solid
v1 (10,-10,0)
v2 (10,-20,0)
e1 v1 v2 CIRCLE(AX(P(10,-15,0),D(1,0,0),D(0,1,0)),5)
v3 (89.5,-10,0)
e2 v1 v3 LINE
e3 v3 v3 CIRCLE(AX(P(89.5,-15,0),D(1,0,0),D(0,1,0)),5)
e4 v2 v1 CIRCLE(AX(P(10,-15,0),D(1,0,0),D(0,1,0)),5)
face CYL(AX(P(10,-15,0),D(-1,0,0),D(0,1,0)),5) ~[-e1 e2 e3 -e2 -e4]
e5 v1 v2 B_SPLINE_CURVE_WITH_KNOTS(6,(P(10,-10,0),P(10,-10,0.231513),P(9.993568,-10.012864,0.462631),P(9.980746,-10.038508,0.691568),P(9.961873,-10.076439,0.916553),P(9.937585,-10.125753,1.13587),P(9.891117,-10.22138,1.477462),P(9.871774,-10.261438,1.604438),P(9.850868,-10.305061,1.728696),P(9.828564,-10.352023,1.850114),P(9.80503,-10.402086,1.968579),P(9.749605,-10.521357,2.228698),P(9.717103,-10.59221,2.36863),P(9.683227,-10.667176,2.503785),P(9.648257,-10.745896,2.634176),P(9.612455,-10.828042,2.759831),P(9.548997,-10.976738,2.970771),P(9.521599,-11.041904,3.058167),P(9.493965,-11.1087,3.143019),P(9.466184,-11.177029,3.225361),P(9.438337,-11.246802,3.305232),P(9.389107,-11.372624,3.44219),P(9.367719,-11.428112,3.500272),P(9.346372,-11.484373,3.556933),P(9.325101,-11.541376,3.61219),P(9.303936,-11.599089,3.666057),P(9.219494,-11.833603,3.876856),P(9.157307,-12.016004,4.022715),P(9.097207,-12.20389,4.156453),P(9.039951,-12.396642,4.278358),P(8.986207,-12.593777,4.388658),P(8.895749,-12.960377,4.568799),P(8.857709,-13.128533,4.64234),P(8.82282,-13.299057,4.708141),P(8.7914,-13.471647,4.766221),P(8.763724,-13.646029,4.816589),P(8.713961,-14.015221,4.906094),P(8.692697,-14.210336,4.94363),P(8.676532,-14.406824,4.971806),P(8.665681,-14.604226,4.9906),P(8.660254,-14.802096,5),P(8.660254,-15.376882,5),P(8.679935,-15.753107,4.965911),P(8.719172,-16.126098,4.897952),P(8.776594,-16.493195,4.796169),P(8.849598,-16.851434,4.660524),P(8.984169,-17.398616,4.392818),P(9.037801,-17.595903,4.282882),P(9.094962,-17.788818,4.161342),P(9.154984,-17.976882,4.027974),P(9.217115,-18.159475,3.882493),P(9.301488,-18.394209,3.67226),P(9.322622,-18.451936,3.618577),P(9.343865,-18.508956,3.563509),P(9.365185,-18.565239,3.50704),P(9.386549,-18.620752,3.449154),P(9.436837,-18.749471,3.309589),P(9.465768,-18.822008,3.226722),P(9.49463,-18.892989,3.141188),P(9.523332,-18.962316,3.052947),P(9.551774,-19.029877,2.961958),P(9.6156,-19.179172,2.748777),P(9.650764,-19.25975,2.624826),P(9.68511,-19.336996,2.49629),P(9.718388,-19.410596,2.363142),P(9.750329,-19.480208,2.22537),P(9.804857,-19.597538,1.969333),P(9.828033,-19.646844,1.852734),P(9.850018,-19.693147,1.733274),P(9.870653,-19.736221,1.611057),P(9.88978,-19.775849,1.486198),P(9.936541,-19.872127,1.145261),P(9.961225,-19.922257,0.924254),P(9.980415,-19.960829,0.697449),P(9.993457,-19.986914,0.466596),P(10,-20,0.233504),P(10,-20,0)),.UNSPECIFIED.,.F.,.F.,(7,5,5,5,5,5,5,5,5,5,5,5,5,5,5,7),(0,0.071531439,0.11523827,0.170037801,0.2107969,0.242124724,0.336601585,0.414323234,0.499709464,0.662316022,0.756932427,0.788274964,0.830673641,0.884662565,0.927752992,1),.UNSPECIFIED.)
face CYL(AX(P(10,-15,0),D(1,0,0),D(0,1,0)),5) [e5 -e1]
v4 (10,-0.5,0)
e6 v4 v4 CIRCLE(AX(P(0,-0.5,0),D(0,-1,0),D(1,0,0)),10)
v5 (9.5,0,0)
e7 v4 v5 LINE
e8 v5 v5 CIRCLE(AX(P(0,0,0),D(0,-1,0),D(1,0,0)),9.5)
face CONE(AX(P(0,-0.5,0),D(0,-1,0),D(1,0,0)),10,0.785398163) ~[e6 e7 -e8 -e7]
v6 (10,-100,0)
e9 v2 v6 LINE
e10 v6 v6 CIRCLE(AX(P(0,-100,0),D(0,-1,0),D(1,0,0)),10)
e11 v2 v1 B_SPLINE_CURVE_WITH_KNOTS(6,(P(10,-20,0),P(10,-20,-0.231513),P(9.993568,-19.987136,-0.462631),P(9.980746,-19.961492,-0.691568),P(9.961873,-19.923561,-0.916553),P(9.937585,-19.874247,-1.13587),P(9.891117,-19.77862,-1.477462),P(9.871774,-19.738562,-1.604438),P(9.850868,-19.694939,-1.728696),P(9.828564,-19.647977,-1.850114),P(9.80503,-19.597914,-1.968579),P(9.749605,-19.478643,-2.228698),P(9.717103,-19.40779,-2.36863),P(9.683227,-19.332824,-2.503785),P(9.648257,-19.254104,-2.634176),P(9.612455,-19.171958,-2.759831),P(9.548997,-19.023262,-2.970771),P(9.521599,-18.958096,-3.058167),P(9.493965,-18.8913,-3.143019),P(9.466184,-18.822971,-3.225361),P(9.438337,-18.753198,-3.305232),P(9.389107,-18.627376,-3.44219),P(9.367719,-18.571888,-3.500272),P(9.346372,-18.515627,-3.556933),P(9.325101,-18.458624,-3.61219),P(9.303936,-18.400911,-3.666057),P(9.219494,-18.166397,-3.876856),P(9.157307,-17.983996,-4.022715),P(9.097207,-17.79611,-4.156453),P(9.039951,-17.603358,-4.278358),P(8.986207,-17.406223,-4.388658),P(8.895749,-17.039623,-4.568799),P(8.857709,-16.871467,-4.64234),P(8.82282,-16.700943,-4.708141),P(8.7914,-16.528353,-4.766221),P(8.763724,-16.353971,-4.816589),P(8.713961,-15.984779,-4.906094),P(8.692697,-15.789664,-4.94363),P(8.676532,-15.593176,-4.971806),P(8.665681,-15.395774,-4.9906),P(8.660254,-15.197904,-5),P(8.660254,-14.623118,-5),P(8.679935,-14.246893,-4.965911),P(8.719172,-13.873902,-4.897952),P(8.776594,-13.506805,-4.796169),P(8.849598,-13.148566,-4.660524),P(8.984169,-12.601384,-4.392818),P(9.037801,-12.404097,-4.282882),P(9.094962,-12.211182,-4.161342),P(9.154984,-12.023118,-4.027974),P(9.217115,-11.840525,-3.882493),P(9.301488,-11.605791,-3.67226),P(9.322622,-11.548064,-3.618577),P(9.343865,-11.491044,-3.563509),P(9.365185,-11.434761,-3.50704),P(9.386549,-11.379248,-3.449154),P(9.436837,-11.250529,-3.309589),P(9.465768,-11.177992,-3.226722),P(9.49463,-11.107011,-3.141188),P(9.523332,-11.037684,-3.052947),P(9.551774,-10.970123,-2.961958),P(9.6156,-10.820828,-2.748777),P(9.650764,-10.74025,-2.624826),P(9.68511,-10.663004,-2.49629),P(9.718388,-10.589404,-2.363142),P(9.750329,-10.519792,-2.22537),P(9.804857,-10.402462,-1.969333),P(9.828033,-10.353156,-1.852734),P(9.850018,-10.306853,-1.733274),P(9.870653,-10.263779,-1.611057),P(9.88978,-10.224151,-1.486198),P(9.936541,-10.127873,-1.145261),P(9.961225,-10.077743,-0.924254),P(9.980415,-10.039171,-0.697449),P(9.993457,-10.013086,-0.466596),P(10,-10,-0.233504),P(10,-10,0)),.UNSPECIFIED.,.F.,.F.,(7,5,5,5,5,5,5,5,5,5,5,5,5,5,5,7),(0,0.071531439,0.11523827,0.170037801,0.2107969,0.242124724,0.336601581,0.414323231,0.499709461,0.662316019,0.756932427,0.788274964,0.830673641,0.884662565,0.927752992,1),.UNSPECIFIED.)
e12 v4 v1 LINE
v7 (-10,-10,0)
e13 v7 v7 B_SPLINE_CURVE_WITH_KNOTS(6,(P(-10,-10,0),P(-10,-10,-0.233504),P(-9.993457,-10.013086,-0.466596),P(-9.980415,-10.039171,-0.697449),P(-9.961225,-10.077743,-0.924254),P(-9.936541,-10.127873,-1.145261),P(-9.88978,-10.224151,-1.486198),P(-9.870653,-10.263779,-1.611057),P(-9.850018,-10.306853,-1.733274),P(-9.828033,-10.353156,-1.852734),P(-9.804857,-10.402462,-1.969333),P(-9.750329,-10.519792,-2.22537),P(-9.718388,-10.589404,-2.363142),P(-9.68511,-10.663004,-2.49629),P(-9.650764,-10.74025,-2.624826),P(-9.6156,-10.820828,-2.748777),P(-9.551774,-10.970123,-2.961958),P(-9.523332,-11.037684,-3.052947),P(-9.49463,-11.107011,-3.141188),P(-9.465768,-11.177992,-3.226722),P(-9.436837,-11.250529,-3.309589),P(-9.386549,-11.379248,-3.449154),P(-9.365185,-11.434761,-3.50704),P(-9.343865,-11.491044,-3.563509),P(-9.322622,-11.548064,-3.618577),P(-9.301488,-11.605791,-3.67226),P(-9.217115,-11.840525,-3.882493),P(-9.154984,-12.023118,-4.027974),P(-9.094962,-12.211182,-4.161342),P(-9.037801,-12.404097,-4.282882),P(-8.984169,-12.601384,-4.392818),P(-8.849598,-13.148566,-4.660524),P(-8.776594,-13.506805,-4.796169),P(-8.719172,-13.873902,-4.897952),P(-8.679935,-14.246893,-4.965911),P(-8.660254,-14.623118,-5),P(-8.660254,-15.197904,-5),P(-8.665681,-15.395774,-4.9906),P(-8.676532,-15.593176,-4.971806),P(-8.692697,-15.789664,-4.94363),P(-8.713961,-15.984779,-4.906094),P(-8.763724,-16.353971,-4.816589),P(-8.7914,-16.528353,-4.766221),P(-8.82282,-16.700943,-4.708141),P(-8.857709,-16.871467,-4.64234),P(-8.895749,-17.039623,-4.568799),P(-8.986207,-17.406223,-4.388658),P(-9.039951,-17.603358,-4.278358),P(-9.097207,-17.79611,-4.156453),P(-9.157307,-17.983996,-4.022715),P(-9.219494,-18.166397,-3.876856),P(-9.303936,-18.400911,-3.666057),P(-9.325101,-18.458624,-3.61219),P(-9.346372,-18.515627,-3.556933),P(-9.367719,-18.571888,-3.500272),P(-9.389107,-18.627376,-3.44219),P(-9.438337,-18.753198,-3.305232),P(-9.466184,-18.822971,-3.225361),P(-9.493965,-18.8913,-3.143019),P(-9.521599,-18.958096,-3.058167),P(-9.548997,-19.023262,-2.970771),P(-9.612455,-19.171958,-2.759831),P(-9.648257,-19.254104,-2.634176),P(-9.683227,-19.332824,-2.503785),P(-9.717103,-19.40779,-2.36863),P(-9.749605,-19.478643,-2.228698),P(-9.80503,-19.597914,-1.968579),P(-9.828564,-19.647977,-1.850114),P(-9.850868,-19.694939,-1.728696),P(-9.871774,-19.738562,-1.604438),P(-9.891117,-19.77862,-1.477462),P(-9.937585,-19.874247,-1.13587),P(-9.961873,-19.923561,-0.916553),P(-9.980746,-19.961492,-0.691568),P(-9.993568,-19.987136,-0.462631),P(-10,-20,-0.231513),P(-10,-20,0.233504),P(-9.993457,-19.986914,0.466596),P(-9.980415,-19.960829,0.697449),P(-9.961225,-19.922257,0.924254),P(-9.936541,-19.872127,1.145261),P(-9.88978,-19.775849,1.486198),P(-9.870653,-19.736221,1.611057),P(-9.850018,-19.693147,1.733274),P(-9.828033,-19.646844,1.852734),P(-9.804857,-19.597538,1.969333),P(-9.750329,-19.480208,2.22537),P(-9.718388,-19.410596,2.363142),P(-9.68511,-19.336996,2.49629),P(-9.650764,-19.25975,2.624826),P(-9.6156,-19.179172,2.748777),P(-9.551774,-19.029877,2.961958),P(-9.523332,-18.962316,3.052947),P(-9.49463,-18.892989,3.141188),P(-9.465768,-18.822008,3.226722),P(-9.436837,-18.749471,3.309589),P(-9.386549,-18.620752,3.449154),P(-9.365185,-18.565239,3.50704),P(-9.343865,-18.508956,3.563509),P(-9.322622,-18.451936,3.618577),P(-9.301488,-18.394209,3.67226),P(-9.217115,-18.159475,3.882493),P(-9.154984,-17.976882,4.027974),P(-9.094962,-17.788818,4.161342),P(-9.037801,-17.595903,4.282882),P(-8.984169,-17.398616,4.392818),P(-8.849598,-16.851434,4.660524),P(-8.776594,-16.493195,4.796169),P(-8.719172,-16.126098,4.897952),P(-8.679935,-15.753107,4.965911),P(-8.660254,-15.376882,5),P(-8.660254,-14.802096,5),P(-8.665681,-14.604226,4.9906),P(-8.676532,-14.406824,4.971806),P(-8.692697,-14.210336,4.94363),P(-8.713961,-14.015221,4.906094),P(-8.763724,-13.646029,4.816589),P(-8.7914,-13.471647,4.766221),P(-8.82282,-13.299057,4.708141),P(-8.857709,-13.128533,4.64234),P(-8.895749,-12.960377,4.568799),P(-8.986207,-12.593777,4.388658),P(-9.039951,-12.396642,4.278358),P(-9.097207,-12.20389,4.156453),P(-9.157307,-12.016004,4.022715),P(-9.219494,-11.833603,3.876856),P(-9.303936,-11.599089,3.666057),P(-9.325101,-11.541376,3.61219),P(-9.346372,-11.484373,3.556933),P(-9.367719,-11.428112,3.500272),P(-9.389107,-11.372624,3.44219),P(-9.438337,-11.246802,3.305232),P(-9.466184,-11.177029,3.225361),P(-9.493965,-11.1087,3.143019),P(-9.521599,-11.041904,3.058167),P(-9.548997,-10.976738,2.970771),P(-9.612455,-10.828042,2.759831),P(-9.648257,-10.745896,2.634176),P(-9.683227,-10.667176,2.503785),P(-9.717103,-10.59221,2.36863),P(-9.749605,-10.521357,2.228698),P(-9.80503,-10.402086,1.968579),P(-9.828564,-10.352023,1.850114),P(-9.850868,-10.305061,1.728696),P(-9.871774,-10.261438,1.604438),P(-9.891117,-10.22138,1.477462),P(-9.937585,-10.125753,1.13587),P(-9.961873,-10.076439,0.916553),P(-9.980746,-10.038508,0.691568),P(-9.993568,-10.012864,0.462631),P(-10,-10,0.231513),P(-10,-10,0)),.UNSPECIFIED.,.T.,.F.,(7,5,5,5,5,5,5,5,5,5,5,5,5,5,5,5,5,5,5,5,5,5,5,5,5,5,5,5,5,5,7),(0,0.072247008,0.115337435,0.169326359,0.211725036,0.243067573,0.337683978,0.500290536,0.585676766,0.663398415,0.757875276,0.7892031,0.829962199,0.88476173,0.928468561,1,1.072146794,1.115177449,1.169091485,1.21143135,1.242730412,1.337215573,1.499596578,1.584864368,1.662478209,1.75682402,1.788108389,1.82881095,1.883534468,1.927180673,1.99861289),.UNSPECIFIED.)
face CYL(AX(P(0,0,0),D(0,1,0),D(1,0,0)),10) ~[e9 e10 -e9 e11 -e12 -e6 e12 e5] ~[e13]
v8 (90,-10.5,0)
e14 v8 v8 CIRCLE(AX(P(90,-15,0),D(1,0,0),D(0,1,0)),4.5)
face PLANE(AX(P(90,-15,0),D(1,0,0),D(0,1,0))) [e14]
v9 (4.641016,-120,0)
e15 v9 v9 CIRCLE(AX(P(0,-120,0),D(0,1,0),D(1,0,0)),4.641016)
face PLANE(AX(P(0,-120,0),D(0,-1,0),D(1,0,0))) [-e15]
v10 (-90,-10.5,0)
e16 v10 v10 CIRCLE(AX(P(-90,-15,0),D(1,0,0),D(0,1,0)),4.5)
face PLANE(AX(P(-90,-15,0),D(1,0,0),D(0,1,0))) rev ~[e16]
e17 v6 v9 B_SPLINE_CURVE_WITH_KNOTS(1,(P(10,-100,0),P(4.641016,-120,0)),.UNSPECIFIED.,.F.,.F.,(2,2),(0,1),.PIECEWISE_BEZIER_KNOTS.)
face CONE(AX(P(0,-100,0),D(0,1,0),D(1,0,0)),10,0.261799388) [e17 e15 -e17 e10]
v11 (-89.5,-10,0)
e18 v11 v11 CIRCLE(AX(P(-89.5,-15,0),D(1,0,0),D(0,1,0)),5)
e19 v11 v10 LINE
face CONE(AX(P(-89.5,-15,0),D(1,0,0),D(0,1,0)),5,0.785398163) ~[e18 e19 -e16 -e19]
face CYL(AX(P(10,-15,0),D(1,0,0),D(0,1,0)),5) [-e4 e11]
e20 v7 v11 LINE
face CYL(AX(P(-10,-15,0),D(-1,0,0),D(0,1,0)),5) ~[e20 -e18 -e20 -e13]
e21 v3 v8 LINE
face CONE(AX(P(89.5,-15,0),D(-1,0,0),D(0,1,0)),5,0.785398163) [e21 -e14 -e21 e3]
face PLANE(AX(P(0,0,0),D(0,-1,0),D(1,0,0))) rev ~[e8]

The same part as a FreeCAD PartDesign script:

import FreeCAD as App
import Part
import Sketcher
from FreeCAD import Vector


def edges_at(feature, points):
    """Names of the edges that pass closest to the given points."""
    edges = feature.Shape.Edges
    near = lambda p: min(range(len(edges)), key=lambda i: edges[i].distToShape(Part.Vertex(*p))[0])
    return sorted({f"Edge{near(p) + 1}" for p in points})

doc = App.newDocument("Part")
params = doc.addObject("Spreadsheet::Sheet", "Params")
for row, (alias, value) in enumerate([
    ("sketch1_diameter", "20 mm"),
    ("pad1_length", "100 mm"),
    ("sketch2_diameter", "20 mm"),
    ("pad2_length", "20 mm"),
    ("pad2_taper", "-15 deg"),
    ("sketch3_diameter", "10 mm"),
    ("pad3_length", "80 mm"),
    ("pad3_length2", "3 mm"),
    ("sketch4_diameter", "10 mm"),
    ("pad4_length", "80 mm"),
    ("pad4_length2", "3 mm"),
    ("chamfer_size", "0.5 mm"),
], start=1):
    params.set(f"A{row}", alias)
    params.set(f"B{row}", "=" + value)
    params.setAlias(f"B{row}", alias)

body = doc.addObject("PartDesign::Body", "Body")

sketch1 = doc.addObject("Sketcher::SketchObject", "Sketch")
body.addObject(sketch1)
sketch1.AttachmentSupport = (doc.XZ_Plane, [""])
sketch1.MapMode = "FlatFace"
sketch1.addGeometry(Part.Circle(Vector(0, 0, 0), Vector(0, 0, 1), 10), False)
sketch1.addConstraint(Sketcher.Constraint("Coincident", 0, 3, -1, 1))
sketch1.addConstraint(Sketcher.Constraint("Diameter", 0, 20.0))
sketch1.setExpression("Constraints[1]", "Params.sketch1_diameter")
pad1 = doc.addObject("PartDesign::Pad", "Pad")
body.addObject(pad1)
pad1.Profile = sketch1
pad1.setExpression("Length", "Params.pad1_length")

sketch2 = doc.addObject("Sketcher::SketchObject", "Sketch001")
body.addObject(sketch2)
sketch2.AttachmentSupport = (doc.XZ_Plane, [""])
sketch2.MapMode = "FlatFace"
sketch2.AttachmentOffset = App.Placement(Vector(0, 0, 100), App.Rotation())
sketch2.addGeometry(Part.Circle(Vector(0, 0, 0), Vector(0, 0, 1), 10), False)
sketch2.addConstraint(Sketcher.Constraint("Coincident", 0, 3, -1, 1))
sketch2.addConstraint(Sketcher.Constraint("Diameter", 0, 20.0))
sketch2.setExpression("Constraints[1]", "Params.sketch2_diameter")
pad2 = doc.addObject("PartDesign::Pad", "Pad001")
body.addObject(pad2)
pad2.Profile = sketch2
pad2.setExpression("Length", "Params.pad2_length")
pad2.setExpression("TaperAngle", "Params.pad2_taper")

sketch3 = doc.addObject("Sketcher::SketchObject", "Sketch002")
body.addObject(sketch3)
sketch3.AttachmentSupport = (doc.YZ_Plane, [""])
sketch3.MapMode = "FlatFace"
sketch3.AttachmentOffset = App.Placement(Vector(0, 0, 10), App.Rotation())
sketch3.addGeometry(Part.Circle(Vector(-15, 0, 0), Vector(0, 0, 1), 5), False)
sketch3.addConstraint(Sketcher.Constraint("PointOnObject", 0, 3, -1))
sketch3.addConstraint(Sketcher.Constraint("Diameter", 0, 10.0))
sketch3.addConstraint(Sketcher.Constraint("DistanceX", 0, 3, -1, 1, 15.0))
sketch3.setExpression("Constraints[1]", "Params.sketch3_diameter")
pad3 = doc.addObject("PartDesign::Pad", "Pad002")
body.addObject(pad3)
pad3.Profile = sketch3
pad3.Type = "TwoLengths"
pad3.setExpression("Length", "Params.pad3_length")
pad3.setExpression("Length2", "Params.pad3_length2")

sketch4 = doc.addObject("Sketcher::SketchObject", "Sketch003")
body.addObject(sketch4)
sketch4.AttachmentSupport = (doc.YZ_Plane, [""])
sketch4.MapMode = "FlatFace"
sketch4.AttachmentOffset = App.Placement(Vector(0, 0, -10), App.Rotation())
sketch4.addGeometry(Part.Circle(Vector(-15, 0, 0), Vector(0, 0, 1), 5), False)
sketch4.addConstraint(Sketcher.Constraint("PointOnObject", 0, 3, -1))
sketch4.addConstraint(Sketcher.Constraint("Diameter", 0, 10.0))
sketch4.addConstraint(Sketcher.Constraint("DistanceX", 0, 3, -1, 1, 15.0))
sketch4.setExpression("Constraints[1]", "Params.sketch4_diameter")
pad4 = doc.addObject("PartDesign::Pad", "Pad003")
body.addObject(pad4)
pad4.Profile = sketch4
pad4.Type = "TwoLengths"
pad4.setExpression("Length", "Params.pad4_length")
pad4.setExpression("Length2", "Params.pad4_length2")
pad4.Reversed = True
doc.recompute()

chamfer = doc.addObject("PartDesign::Chamfer", "Chamfer")
body.addObject(chamfer)
chamfer.Base = (pad4, edges_at(pad4, [(-90, -20, 0), (-10, 0, 0), (90, -20, 0)]))
chamfer.setExpression("Size", "Params.chamfer_size")

doc.recompute()
